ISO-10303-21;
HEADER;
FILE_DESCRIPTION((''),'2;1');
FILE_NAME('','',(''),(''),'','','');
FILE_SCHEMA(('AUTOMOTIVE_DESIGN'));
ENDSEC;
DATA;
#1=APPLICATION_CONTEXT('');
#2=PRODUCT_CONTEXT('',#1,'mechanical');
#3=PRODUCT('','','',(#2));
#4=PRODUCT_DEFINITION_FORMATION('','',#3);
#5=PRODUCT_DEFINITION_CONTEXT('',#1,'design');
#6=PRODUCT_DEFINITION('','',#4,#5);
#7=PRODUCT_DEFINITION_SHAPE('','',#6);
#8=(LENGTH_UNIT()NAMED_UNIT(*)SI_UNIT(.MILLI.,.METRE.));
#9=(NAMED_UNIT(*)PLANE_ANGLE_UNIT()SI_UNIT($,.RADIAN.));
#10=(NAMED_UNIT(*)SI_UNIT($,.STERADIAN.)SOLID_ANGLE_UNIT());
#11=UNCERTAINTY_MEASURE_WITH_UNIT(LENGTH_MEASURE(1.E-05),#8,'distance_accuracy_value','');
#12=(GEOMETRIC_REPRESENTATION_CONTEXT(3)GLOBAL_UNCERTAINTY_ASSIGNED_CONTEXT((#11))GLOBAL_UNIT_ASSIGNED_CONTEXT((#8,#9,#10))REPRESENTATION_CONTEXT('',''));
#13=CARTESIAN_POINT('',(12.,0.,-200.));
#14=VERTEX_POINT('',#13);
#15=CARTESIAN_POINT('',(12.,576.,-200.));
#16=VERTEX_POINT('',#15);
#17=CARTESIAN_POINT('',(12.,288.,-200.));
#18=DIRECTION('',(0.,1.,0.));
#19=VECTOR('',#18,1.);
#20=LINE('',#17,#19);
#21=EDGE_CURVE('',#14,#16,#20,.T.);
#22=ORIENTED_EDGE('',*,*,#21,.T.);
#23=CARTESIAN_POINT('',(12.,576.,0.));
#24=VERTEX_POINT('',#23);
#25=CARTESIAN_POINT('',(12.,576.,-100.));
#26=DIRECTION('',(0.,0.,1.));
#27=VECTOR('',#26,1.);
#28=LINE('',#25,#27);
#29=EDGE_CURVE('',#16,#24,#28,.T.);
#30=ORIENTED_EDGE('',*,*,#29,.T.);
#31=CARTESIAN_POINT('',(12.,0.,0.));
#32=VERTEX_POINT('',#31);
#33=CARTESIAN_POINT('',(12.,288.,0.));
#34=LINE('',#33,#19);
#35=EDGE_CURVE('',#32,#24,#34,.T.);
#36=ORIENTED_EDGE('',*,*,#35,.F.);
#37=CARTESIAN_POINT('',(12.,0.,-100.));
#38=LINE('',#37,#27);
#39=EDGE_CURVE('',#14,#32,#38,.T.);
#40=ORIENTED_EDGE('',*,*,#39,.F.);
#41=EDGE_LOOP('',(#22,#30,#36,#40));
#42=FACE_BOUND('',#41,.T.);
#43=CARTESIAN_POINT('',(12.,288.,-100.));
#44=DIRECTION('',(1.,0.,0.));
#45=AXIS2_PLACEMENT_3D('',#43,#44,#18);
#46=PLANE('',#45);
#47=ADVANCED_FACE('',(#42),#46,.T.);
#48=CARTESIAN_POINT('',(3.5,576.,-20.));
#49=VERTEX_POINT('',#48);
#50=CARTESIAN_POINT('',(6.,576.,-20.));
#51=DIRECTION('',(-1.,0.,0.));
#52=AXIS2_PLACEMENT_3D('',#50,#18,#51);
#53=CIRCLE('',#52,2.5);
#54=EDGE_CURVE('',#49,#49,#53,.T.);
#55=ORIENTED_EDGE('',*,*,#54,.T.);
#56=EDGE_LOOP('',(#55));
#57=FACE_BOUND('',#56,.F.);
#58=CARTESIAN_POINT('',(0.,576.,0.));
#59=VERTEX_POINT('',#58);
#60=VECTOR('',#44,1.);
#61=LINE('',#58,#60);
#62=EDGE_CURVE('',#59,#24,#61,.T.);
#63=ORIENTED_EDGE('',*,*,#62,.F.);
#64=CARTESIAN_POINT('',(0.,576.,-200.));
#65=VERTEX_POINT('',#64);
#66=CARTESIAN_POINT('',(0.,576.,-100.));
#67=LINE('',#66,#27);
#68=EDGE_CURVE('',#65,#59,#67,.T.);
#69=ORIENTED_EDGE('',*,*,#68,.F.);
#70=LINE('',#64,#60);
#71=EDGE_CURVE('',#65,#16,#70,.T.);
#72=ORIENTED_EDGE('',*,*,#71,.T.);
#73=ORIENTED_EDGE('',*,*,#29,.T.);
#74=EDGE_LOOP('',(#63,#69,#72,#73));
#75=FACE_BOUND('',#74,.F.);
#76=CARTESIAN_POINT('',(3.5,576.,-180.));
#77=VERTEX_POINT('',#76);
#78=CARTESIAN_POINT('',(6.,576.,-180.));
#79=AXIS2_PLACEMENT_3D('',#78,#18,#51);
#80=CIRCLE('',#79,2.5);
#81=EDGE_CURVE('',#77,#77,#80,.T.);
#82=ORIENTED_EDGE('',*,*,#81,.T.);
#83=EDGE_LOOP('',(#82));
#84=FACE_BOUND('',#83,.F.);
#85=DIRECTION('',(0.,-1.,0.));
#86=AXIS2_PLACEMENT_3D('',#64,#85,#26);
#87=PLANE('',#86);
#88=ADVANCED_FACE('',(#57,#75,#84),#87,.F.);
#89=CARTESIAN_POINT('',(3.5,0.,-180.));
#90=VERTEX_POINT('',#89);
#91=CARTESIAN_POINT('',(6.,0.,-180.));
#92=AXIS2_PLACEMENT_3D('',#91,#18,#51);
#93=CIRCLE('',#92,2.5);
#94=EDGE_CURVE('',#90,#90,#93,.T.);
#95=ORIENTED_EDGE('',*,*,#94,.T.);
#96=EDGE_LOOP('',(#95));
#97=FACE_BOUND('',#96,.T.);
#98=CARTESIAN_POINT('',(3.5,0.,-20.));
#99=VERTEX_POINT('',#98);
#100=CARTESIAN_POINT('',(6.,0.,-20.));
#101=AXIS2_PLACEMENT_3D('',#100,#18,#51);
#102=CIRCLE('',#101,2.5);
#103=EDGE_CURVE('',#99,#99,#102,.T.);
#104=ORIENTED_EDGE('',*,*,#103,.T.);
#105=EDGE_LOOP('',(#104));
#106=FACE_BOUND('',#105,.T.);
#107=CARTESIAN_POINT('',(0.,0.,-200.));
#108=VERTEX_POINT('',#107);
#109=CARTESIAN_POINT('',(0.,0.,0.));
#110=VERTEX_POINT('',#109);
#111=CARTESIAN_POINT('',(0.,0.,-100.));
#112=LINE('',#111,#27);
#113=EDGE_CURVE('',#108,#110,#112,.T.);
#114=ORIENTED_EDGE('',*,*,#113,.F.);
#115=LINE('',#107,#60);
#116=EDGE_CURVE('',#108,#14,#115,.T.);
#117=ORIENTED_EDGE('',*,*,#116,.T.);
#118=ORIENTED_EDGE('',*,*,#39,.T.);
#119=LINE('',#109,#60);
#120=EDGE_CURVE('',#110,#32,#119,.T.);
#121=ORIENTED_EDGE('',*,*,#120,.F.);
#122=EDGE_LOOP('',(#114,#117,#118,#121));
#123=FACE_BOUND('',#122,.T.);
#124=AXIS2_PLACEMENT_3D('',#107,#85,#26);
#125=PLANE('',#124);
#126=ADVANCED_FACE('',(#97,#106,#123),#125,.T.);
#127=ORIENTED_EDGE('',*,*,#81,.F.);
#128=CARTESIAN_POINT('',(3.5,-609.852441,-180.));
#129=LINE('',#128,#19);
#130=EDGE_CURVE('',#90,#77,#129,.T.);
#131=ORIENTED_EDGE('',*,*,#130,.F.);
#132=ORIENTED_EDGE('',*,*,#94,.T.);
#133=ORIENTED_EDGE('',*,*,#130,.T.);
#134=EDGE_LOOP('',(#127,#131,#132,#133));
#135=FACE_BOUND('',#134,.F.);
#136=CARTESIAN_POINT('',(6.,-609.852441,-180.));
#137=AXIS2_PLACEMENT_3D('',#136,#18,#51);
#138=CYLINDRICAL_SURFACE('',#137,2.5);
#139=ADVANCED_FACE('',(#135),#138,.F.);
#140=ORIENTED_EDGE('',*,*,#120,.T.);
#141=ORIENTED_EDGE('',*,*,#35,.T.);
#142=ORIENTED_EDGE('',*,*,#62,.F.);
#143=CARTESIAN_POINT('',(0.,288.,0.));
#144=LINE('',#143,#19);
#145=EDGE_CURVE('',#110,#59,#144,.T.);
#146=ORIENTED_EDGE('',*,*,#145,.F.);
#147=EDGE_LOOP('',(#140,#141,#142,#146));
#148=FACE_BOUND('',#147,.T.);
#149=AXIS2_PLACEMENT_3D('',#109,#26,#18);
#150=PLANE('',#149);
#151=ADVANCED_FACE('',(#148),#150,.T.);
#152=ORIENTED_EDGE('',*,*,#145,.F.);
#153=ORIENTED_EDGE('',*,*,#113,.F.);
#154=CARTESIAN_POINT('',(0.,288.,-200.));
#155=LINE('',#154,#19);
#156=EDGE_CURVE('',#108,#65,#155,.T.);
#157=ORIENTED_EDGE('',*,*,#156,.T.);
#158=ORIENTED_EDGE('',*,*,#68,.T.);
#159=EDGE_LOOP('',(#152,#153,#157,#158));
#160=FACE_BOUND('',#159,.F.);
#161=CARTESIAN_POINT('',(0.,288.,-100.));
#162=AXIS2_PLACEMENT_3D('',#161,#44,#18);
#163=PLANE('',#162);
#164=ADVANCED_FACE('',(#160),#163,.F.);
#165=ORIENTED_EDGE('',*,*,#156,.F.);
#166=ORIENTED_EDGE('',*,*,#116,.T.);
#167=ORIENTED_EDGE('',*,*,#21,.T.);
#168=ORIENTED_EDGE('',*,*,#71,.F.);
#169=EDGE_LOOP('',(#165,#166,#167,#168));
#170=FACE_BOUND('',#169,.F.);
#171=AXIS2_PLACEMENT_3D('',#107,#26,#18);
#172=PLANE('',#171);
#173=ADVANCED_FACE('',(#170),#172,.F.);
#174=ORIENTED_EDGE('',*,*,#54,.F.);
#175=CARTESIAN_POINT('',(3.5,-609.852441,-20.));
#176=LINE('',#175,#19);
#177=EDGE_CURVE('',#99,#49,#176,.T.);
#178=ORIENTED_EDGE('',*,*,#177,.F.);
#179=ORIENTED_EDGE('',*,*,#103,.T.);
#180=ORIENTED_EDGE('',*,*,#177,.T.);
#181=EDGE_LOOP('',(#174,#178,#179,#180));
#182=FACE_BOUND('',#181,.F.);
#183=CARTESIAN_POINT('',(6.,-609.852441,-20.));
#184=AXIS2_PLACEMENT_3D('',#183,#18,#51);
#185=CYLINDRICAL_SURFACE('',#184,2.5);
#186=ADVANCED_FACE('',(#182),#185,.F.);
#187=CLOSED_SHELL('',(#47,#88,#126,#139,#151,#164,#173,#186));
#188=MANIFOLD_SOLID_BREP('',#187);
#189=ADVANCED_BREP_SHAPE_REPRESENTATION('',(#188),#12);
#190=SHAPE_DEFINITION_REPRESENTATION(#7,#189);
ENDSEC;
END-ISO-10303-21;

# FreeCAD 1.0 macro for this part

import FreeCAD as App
import Part
import Sketcher
Q = App.Units.Quantity


def add_polygon(sketch, points):
    """Adds a closed chain of lines whose ends are joined by coincident constraints."""
    first, n = sketch.GeometryCount, len(points)
    for a, b in zip(points, points[1:] + points[:1]):
        sketch.addGeometry(Part.LineSegment(App.Vector(*a, 0), App.Vector(*b, 0)), False)
    for i in range(n):
        sketch.addConstraint(Sketcher.Constraint("Coincident", first + i, 2, first + (i + 1) % n, 1))

doc = App.newDocument("Part")
body = doc.addObject("PartDesign::Body", "Body")

# Sketch on YZ plane
sketch1 = body.newObject("Sketcher::SketchObject", "Sketch")
sketch1.AttachmentSupport = (doc.getObject("YZ_Plane"), [""])
sketch1.MapMode = "FlatFace"
add_polygon(sketch1, [(0, 0), (0, -200), (576, -200), (576, 0)])  # lines 0-3
sketch1.addConstraint([
    Sketcher.Constraint("Vertical", 0),
    Sketcher.Constraint("Horizontal", 1),
    Sketcher.Constraint("Vertical", 2),
    Sketcher.Constraint("Horizontal", 3),
    Sketcher.Constraint("Coincident", 3, 2, -1, 1),
    Sketcher.Constraint("DistanceX", 1, 1, 1, 2, Q("576 mm")),
    Sketcher.Constraint("DistanceY", 0, 2, 0, 1, Q("200 mm")),
])
pad1 = body.newObject("PartDesign::Pad", "Pad")
pad1.Profile = sketch1
pad1.Length = 12

# Sketch on XZ plane
sketch2 = body.newObject("Sketcher::SketchObject", "Sketch001")
sketch2.AttachmentSupport = (doc.getObject("XZ_Plane"), [""])
sketch2.MapMode = "FlatFace"
sketch2.addGeometry([
    Part.Circle(App.Vector(6, -20, 0), App.Vector(0, 0, 1), 2.5),
    Part.Circle(App.Vector(6, -180, 0), App.Vector(0, 0, 1), 2.5),
], False)
sketch2.addConstraint([
    Sketcher.Constraint("Equal", 0, 1),
    Sketcher.Constraint("Vertical", 0, 3, 1, 3),
    Sketcher.Constraint("Diameter", 0, Q("5 mm")),
    Sketcher.Constraint("DistanceX", -1, 1, 0, 3, Q("6 mm")),
    Sketcher.Constraint("DistanceY", 0, 3, -1, 1, Q("20 mm")),
    Sketcher.Constraint("DistanceY", 1, 3, -1, 1, Q("180 mm")),
])
doc.recompute()
hole = body.newObject("PartDesign::Hole", "Hole")
hole.Profile = sketch2
hole.ThreadType = "None"
hole.Diameter = 5
hole.DepthType = "ThroughAll"

doc.recompute()
